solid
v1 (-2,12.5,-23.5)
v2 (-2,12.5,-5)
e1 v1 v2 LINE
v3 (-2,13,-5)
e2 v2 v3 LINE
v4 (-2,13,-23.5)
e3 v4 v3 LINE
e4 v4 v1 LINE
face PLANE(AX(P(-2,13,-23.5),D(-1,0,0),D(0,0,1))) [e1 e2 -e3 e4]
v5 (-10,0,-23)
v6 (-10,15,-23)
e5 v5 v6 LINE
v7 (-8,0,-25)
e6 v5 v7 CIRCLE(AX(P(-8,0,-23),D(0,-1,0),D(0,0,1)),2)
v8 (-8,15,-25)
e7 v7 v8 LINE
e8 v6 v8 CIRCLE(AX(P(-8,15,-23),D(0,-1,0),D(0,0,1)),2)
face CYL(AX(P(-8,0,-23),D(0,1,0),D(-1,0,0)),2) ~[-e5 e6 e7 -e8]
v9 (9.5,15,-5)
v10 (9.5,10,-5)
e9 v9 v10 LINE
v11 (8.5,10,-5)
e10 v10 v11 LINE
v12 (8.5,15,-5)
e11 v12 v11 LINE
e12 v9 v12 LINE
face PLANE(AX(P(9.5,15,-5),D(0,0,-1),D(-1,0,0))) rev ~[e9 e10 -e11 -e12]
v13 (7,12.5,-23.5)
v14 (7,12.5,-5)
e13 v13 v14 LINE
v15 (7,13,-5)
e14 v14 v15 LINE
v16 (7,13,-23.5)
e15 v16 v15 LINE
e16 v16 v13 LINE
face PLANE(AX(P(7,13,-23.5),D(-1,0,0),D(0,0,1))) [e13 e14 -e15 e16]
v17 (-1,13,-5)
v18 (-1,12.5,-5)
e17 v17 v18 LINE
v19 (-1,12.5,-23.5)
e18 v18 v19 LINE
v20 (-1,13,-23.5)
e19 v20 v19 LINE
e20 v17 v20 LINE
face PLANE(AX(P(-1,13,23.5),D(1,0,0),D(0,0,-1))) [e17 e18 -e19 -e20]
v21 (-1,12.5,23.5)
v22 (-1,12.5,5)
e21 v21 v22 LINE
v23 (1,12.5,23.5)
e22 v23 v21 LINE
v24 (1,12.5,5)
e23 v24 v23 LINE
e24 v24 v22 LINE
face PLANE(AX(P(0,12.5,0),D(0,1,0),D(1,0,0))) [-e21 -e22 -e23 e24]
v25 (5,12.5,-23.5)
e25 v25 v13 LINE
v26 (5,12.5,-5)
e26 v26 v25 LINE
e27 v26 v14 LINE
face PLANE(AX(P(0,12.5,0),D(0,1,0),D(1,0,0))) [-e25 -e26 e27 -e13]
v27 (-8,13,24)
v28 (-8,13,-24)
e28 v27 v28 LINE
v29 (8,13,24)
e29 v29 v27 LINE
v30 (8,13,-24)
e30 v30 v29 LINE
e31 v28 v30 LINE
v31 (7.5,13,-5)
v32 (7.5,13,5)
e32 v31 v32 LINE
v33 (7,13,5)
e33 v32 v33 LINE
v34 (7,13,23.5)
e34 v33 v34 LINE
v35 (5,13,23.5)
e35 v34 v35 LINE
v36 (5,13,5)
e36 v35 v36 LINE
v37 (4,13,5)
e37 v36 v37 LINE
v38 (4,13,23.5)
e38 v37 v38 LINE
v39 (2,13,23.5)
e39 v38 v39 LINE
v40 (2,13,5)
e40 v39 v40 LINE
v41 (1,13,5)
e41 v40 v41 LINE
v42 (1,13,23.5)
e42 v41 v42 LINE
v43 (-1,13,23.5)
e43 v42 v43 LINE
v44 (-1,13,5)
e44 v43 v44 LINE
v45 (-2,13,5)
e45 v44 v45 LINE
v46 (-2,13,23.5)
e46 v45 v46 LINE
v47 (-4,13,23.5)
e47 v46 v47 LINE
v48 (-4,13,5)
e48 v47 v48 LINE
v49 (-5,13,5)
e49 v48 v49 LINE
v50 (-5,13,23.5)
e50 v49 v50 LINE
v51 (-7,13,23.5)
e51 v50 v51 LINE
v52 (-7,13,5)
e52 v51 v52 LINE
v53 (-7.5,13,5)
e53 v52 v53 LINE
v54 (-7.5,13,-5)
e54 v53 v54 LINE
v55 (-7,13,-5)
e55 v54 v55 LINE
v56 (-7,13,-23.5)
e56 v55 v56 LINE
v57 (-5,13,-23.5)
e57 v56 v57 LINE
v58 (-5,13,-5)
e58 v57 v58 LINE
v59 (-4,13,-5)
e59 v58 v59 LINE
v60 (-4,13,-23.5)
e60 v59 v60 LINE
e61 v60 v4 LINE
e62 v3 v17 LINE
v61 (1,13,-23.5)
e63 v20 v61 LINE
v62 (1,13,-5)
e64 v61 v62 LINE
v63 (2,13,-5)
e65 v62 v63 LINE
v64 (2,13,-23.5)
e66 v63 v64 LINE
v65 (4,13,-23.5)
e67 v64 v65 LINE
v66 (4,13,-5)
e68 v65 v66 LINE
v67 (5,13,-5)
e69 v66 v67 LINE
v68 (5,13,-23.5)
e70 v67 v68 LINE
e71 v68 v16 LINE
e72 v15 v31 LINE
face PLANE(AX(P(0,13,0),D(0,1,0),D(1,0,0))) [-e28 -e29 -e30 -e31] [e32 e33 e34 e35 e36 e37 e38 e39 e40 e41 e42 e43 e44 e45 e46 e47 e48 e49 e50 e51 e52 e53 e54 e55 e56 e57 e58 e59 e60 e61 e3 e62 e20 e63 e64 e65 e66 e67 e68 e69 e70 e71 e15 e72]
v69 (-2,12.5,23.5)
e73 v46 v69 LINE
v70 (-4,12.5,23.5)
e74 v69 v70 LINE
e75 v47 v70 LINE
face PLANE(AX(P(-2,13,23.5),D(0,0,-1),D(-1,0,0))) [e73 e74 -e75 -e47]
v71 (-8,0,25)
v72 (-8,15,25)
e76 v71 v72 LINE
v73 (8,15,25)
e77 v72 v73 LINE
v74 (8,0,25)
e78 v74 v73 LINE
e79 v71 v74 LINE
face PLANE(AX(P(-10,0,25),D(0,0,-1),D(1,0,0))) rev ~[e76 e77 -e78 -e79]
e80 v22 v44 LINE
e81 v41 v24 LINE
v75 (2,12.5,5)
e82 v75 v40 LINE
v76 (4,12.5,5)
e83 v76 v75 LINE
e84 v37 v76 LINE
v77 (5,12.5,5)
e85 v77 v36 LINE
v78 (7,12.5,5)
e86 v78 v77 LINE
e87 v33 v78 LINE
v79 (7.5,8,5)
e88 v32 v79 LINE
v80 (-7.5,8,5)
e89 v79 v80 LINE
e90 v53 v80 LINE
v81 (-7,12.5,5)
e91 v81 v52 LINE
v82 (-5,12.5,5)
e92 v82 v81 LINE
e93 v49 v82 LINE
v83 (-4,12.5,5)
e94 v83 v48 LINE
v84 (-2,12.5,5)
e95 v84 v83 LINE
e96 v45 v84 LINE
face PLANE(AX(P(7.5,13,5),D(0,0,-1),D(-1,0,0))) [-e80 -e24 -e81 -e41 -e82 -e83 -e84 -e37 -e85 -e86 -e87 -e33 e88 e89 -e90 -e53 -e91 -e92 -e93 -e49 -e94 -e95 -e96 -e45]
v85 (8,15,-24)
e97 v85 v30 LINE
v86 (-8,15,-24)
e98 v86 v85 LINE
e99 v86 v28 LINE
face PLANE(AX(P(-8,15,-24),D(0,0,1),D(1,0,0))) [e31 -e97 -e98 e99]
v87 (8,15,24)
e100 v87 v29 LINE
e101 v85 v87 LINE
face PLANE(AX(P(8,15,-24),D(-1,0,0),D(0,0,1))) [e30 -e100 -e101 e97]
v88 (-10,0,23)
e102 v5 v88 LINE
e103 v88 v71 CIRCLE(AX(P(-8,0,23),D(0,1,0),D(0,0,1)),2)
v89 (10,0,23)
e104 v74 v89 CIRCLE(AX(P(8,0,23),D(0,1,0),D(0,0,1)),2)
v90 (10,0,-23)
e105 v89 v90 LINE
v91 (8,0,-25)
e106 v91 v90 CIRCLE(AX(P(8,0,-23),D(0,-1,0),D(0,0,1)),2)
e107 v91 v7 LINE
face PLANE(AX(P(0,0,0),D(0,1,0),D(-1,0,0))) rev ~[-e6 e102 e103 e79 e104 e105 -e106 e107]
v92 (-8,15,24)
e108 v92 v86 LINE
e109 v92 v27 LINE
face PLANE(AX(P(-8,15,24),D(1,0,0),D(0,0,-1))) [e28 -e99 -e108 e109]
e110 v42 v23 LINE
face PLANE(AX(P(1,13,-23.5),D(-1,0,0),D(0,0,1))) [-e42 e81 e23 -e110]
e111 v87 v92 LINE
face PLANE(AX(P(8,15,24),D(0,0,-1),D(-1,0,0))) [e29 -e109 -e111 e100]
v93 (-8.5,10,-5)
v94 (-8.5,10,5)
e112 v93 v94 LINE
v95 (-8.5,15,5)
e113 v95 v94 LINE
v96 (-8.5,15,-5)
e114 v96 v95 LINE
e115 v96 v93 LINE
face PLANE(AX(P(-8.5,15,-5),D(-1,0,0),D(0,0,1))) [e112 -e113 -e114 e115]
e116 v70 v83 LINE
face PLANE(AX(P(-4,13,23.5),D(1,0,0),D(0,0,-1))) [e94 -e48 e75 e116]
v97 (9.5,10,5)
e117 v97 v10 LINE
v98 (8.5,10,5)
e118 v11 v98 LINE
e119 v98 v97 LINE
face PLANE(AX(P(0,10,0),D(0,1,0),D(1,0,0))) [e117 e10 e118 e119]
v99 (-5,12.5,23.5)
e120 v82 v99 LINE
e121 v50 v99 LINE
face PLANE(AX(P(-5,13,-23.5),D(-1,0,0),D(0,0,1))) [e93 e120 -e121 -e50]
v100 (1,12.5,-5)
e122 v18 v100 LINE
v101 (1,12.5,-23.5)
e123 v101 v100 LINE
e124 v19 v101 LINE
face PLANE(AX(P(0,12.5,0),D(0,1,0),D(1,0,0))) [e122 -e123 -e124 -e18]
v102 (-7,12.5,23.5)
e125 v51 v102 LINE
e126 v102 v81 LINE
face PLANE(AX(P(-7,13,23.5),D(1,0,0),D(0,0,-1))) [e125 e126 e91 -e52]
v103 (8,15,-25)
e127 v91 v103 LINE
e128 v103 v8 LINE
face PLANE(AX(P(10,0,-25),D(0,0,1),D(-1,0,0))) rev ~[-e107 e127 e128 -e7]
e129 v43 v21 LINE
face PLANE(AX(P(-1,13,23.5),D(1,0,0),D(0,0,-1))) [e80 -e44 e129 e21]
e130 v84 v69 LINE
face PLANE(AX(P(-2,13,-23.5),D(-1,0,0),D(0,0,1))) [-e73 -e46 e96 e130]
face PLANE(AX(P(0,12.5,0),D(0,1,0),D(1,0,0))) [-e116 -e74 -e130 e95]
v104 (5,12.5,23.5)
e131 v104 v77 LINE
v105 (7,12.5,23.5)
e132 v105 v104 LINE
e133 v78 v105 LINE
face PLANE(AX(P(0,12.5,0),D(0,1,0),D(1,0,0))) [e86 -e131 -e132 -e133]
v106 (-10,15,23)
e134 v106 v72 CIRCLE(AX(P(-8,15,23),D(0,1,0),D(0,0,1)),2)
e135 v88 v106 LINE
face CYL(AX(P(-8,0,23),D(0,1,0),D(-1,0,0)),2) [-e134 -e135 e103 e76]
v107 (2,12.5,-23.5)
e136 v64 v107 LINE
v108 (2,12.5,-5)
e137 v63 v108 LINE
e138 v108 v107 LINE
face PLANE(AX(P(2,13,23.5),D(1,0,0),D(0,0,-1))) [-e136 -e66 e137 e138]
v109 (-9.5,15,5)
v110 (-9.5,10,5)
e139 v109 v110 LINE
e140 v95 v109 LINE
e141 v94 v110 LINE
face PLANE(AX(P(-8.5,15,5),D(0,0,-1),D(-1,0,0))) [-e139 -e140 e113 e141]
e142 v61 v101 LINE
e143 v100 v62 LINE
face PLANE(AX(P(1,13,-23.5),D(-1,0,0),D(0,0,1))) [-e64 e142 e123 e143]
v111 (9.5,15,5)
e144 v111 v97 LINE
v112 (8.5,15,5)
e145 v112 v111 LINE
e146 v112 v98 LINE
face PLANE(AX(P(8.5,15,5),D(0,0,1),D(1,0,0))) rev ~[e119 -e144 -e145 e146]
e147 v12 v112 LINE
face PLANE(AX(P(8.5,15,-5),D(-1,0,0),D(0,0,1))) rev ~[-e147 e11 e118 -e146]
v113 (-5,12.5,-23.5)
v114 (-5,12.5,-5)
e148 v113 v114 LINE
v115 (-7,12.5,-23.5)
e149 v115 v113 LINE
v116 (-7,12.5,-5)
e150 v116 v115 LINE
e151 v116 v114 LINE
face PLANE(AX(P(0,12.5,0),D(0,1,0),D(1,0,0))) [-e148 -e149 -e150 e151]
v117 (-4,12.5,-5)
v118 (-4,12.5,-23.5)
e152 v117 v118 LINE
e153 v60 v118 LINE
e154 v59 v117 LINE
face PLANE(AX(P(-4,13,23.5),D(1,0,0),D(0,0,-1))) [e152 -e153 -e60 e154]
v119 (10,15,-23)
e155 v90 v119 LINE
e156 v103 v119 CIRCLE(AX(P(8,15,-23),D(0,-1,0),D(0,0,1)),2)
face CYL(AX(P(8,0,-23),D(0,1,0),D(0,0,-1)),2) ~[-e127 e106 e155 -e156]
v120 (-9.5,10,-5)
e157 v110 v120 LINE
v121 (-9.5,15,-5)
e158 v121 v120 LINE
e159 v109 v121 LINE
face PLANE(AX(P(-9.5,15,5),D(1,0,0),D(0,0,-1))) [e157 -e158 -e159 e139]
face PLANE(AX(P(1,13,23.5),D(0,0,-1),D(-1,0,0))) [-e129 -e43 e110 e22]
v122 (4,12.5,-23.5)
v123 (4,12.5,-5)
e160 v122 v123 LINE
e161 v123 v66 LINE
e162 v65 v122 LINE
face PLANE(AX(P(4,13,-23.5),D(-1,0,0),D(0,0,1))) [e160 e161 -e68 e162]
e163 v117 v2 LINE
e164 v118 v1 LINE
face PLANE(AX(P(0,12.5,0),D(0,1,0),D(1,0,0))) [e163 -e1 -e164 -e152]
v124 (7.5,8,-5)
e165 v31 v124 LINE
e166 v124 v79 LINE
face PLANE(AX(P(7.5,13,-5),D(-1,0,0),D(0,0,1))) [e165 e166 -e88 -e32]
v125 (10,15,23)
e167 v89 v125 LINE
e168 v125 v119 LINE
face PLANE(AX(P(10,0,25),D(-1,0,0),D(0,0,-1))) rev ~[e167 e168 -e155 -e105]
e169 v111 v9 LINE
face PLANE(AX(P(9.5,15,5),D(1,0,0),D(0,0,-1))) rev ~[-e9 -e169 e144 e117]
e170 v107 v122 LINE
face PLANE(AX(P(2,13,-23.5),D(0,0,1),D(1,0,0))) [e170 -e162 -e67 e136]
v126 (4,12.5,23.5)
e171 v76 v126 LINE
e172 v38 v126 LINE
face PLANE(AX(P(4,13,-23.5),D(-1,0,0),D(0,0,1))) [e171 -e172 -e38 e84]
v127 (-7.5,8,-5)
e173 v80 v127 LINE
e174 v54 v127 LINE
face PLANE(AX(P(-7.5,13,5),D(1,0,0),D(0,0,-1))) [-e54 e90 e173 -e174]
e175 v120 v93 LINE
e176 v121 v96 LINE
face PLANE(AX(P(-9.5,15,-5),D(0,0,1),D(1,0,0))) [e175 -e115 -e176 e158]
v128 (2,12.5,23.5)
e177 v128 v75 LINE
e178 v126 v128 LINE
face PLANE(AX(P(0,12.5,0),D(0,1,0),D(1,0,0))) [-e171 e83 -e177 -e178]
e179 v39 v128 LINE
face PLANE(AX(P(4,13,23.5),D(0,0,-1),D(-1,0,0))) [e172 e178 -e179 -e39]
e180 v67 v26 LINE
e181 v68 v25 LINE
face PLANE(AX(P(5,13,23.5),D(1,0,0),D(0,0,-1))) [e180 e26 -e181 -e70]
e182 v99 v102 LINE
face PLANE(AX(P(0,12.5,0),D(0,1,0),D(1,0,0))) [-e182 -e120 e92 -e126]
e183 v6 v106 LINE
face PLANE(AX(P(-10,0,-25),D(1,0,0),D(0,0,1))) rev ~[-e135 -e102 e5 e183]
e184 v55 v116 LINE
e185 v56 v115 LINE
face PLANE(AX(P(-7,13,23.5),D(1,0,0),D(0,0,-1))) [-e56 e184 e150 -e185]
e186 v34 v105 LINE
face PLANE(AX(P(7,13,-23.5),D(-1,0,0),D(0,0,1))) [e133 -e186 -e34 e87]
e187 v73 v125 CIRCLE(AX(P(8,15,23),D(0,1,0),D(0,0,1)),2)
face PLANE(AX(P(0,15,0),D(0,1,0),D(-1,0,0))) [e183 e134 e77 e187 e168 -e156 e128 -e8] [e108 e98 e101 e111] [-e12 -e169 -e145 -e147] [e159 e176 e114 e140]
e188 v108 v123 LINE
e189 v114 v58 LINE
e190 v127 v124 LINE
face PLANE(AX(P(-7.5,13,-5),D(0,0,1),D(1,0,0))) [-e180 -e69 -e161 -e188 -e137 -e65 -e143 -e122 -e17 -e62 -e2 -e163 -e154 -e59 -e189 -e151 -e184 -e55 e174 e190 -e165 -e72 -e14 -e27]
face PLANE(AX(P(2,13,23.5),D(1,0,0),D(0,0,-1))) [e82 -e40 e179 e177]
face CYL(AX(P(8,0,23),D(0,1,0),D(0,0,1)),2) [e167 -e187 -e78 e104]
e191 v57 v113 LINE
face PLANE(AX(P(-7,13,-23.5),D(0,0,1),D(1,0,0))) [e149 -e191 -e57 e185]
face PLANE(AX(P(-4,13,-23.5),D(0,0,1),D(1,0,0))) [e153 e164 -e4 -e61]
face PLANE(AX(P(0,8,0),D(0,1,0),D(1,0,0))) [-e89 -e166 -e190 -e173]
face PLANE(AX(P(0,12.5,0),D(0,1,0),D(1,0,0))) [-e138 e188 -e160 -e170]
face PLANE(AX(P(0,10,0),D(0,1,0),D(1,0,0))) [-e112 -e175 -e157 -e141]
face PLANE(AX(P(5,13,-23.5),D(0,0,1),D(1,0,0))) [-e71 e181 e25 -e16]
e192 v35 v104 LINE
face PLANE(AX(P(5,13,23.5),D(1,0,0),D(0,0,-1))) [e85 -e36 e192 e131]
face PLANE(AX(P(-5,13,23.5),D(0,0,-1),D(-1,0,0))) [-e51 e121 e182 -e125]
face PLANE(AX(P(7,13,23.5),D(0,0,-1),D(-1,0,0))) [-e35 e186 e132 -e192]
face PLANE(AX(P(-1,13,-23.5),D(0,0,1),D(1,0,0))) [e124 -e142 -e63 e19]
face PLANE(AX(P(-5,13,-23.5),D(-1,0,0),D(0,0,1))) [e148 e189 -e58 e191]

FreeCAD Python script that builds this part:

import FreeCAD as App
import Part
import Sketcher
Q = App.Units.Quantity


def edges_at(feature, points):
    """Names of the edges that pass closest to the given points."""
    edges = feature.Shape.Edges
    near = lambda p: min(range(len(edges)), key=lambda i: edges[i].distToShape(Part.Vertex(*p))[0])
    return sorted({f"Edge{near(p) + 1}" for p in points})


def add_polygon(sketch, points):
    """Adds a closed chain of lines whose ends are joined by coincident constraints."""
    first, n = sketch.GeometryCount, len(points)
    for a, b in zip(points, points[1:] + points[:1]):
        sketch.addGeometry(Part.LineSegment(App.Vector(*a, 0), App.Vector(*b, 0)), False)
    for i in range(n):
        sketch.addConstraint(Sketcher.Constraint("Coincident", first + i, 2, first + (i + 1) % n, 1))

doc = App.newDocument("Part")
body = doc.addObject("PartDesign::Body", "Body")

# Sketch on XZ plane
sketch1 = doc.addObject("Sketcher::SketchObject", "Sketch")
body.addObject(sketch1)
sketch1.AttachmentSupport = (doc.XZ_Plane, [""])
sketch1.MapMode = "FlatFace"
add_polygon(sketch1, [(-10, -25), (-10, 25), (10, 25), (10, -25)])  # lines 0-3
sketch1.addConstraint([
    Sketcher.Constraint("Vertical", 0),
    Sketcher.Constraint("Horizontal", 1),
    Sketcher.Constraint("Vertical", 2),
    Sketcher.Constraint("Horizontal", 3),
    Sketcher.Constraint("Symmetric", 0, 2, 2, 2, -1, 1),
    Sketcher.Constraint("DistanceX", 1, 1, 1, 2, Q("20 mm")),
    Sketcher.Constraint("DistanceY", 0, 1, 0, 2, Q("50 mm")),
])
pad1 = doc.addObject("PartDesign::Pad", "Pad")
body.addObject(pad1)
pad1.Profile = sketch1
pad1.Length = 15
pad1.Reversed = True

# Sketch on XZ plane
sketch2 = doc.addObject("Sketcher::SketchObject", "Sketch001")
body.addObject(sketch2)
sketch2.AttachmentSupport = (doc.XZ_Plane, [""])
sketch2.MapMode = "FlatFace"
sketch2.AttachmentOffset = App.Placement(App.Vector(0, 0, -15), App.Rotation())
add_polygon(sketch2, [(8, -24), (-8, -24), (-8, 24), (8, 24)])  # lines 0-3
sketch2.addConstraint([
    Sketcher.Constraint("Horizontal", 0),
    Sketcher.Constraint("Vertical", 1),
    Sketcher.Constraint("Horizontal", 2),
    Sketcher.Constraint("Vertical", 3),
    Sketcher.Constraint("Symmetric", 0, 2, 2, 2, -1, 1),
    Sketcher.Constraint("DistanceX", 0, 2, 0, 1, Q("16 mm")),
    Sketcher.Constraint("DistanceY", 1, 1, 1, 2, Q("48 mm")),
])
pocket1 = doc.addObject("PartDesign::Pocket", "Pocket")
body.addObject(pocket1)
pocket1.Profile = sketch2
pocket1.Length = 2
pocket1.Reversed = True

# Sketch on XZ plane
sketch3 = doc.addObject("Sketcher::SketchObject", "Sketch002")
body.addObject(sketch3)
sketch3.AttachmentSupport = (doc.XZ_Plane, [""])
sketch3.MapMode = "FlatFace"
sketch3.AttachmentOffset = App.Placement(App.Vector(0, 0, -13), App.Rotation())
add_polygon(sketch3, [(1, -23.5), (-1, -23.5), (-1, 23.5), (1, 23.5)])  # lines 0-3
add_polygon(sketch3, [(4, -23.5), (2, -23.5), (2, 23.5), (4, 23.5)])  # lines 4-7
add_polygon(sketch3, [(-5, -23.5), (-7, -23.5), (-7, 23.5), (-5, 23.5)])  # lines 8-11
add_polygon(sketch3, [(-2, -23.5), (-4, -23.5), (-4, 23.5), (-2, 23.5)])  # lines 12-15
add_polygon(sketch3, [(7, -23.5), (5, -23.5), (5, 23.5), (7, 23.5)])  # lines 16-19
sketch3.addConstraint([
    Sketcher.Constraint("Horizontal", 0),
    Sketcher.Constraint("Vertical", 1),
    Sketcher.Constraint("Horizontal", 2),
    Sketcher.Constraint("Vertical", 3),
    Sketcher.Constraint("Horizontal", 4),
    Sketcher.Constraint("Vertical", 5),
    Sketcher.Constraint("Horizontal", 6),
    Sketcher.Constraint("Vertical", 7),
    Sketcher.Constraint("Horizontal", 8),
    Sketcher.Constraint("Vertical", 9),
    Sketcher.Constraint("Horizontal", 10),
    Sketcher.Constraint("Vertical", 11),
    Sketcher.Constraint("Horizontal", 12),
    Sketcher.Constraint("Vertical", 13),
    Sketcher.Constraint("Horizontal", 14),
    Sketcher.Constraint("Vertical", 15),
    Sketcher.Constraint("Horizontal", 16),
    Sketcher.Constraint("Vertical", 17),
    Sketcher.Constraint("Horizontal", 18),
    Sketcher.Constraint("Vertical", 19),
    Sketcher.Constraint("Symmetric", 0, 2, 2, 2, -1, 1),
    Sketcher.Constraint("Symmetric", 6, 2, 12, 2, -1, 1),
    Sketcher.Constraint("Symmetric", 4, 2, 14, 2, -1, 1),
    Sketcher.Constraint("Symmetric", 10, 2, 16, 2, -1, 1),
    Sketcher.Constraint("Symmetric", 8, 2, 18, 2, -1, 1),
    Sketcher.Constraint("Horizontal", 3, 2, 4, 2),
    Sketcher.Constraint("Horizontal", 2, 2, 5, 2),
    Sketcher.Constraint("Horizontal", 7, 2, 8, 2),
    Sketcher.Constraint("Horizontal", 6, 2, 9, 2),
    Sketcher.Constraint("Equal", 2, 4),
    Sketcher.Constraint("Equal", 6, 8),
    Sketcher.Constraint("DistanceX", 0, 2, 0, 1, Q("2 mm")),
    Sketcher.Constraint("DistanceY", 1, 1, 1, 2, Q("47 mm")),
    Sketcher.Constraint("DistanceX", -1, 1, 4, 2, Q("2 mm")),
    Sketcher.Constraint("DistanceX", 11, 2, 12, 2, Q("1 mm")),
])
pocket2 = doc.addObject("PartDesign::Pocket", "Pocket001")
body.addObject(pocket2)
pocket2.Profile = sketch3
pocket2.Length = 0.5
pocket2.Reversed = True

# Sketch on XZ plane
sketch4 = doc.addObject("Sketcher::SketchObject", "Sketch003")
body.addObject(sketch4)
sketch4.AttachmentSupport = (doc.XZ_Plane, [""])
sketch4.MapMode = "FlatFace"
sketch4.AttachmentOffset = App.Placement(App.Vector(0, 0, -15), App.Rotation())
add_polygon(sketch4, [(9.5, 5), (9.5, -5), (8.5, -5), (8.5, 5)])  # lines 0-3
add_polygon(sketch4, [(-9.5, 5), (-8.5, 5), (-8.5, -5), (-9.5, -5)])  # lines 4-7
sketch4.addConstraint([
    Sketcher.Constraint("Vertical", 0),
    Sketcher.Constraint("Horizontal", 1),
    Sketcher.Constraint("Vertical", 2),
    Sketcher.Constraint("Horizontal", 3),
    Sketcher.Constraint("Horizontal", 4),
    Sketcher.Constraint("Vertical", 5),
    Sketcher.Constraint("Horizontal", 6),
    Sketcher.Constraint("Vertical", 7),
    Sketcher.Constraint("Symmetric", 1, 2, 4, 2, -1, 1),
    Sketcher.Constraint("Symmetric", 3, 2, 6, 2, -1, 1),
    Sketcher.Constraint("Horizontal", 3, 2, 4, 2),
    Sketcher.Constraint("DistanceX", 1, 2, 1, 1, Q("1 mm")),
    Sketcher.Constraint("DistanceY", 0, 2, 0, 1, Q("10 mm")),
    Sketcher.Constraint("DistanceX", 4, 2, 2, 2, Q("17 mm")),
])
pocket3 = doc.addObject("PartDesign::Pocket", "Pocket002")
body.addObject(pocket3)
pocket3.Profile = sketch4
pocket3.Length = 5
pocket3.Reversed = True

# Sketch on XZ plane
sketch5 = doc.addObject("Sketcher::SketchObject", "Sketch004")
body.addObject(sketch5)
sketch5.AttachmentSupport = (doc.XZ_Plane, [""])
sketch5.MapMode = "FlatFace"
sketch5.AttachmentOffset = App.Placement(App.Vector(0, 0, -13), App.Rotation())
add_polygon(sketch5, [(8, -5), (-8, -5), (-8, 5), (8, 5)])  # lines 0-3
sketch5.addConstraint([
    Sketcher.Constraint("Horizontal", 0),
    Sketcher.Constraint("Vertical", 1),
    Sketcher.Constraint("Horizontal", 2),
    Sketcher.Constraint("Vertical", 3),
    Sketcher.Constraint("Symmetric", 0, 2, 2, 2, -1, 1),
    Sketcher.Constraint("DistanceY", 1, 1, 1, 2, Q("10 mm")),
    Sketcher.Constraint("DistanceX", 0, 2, 0, 1, Q("15 mm")),
])
pocket4 = doc.addObject("PartDesign::Pocket", "Pocket003")
body.addObject(pocket4)
pocket4.Profile = sketch5
pocket4.Length = 5
pocket4.Reversed = True
doc.recompute()

fillet = doc.addObject("PartDesign::Fillet", "Fillet")
body.addObject(fillet)
fillet.Base = (pocket4, edges_at(pocket4, [
    (10, 7.5, 25),
    (-10, 7.5, 25),
    (10, 7.5, -25),
    (-10, 7.5, -25),
]))
fillet.Radius = 2

doc.recompute()
